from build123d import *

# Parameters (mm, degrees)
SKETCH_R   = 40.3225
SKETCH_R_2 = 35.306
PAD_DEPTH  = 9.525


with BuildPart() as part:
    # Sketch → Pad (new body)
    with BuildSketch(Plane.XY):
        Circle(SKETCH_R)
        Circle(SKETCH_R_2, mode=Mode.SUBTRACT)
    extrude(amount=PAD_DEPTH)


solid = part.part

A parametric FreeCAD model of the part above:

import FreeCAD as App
import Part
import Sketcher
Q = App.Units.Quantity

doc = App.newDocument("Part")
params = doc.addObject("Spreadsheet::Sheet", "Params")
for row, (alias, value) in enumerate([
    ("sketch1_diameter", "2.78 in"),
    ("sketch1_diameter2", "3.175 in"),
    ("pad1_length", "0.375 in"),
], start=1):
    params.set(f"A{row}", alias)
    params.set(f"B{row}", "=" + value)
    params.setAlias(f"B{row}", alias)

body = doc.addObject("PartDesign::Body", "Body")

sketch1 = doc.addObject("Sketcher::SketchObject", "Sketch")
body.addObject(sketch1)
sketch1.AttachmentSupport = (doc.XY_Plane, [""])
sketch1.MapMode = "FlatFace"
sketch1.addGeometry([
    Part.Circle(App.Vector(0, 0, 0), App.Vector(0, 0, 1), 40),
    Part.Circle(App.Vector(0, 0, 0), App.Vector(0, 0, 1), 35),
], False)
sketch1.addConstraint([
    Sketcher.Constraint("Coincident", 0, 3, -1, 1),
    Sketcher.Constraint("Coincident", 1, 3, -1, 1),
    Sketcher.Constraint("Diameter", 1, Q("2.78 in")),
    Sketcher.Constraint("Diameter", 0, Q("3.175 in")),
])
sketch1.setExpression("Constraints[2]", "Params.sketch1_diameter")
sketch1.setExpression("Constraints[3]", "Params.sketch1_diameter2")
pad1 = doc.addObject("PartDesign::Pad", "Pad")
body.addObject(pad1)
pad1.Profile = sketch1
pad1.setExpression("Length", "Params.pad1_length")

doc.recompute()
